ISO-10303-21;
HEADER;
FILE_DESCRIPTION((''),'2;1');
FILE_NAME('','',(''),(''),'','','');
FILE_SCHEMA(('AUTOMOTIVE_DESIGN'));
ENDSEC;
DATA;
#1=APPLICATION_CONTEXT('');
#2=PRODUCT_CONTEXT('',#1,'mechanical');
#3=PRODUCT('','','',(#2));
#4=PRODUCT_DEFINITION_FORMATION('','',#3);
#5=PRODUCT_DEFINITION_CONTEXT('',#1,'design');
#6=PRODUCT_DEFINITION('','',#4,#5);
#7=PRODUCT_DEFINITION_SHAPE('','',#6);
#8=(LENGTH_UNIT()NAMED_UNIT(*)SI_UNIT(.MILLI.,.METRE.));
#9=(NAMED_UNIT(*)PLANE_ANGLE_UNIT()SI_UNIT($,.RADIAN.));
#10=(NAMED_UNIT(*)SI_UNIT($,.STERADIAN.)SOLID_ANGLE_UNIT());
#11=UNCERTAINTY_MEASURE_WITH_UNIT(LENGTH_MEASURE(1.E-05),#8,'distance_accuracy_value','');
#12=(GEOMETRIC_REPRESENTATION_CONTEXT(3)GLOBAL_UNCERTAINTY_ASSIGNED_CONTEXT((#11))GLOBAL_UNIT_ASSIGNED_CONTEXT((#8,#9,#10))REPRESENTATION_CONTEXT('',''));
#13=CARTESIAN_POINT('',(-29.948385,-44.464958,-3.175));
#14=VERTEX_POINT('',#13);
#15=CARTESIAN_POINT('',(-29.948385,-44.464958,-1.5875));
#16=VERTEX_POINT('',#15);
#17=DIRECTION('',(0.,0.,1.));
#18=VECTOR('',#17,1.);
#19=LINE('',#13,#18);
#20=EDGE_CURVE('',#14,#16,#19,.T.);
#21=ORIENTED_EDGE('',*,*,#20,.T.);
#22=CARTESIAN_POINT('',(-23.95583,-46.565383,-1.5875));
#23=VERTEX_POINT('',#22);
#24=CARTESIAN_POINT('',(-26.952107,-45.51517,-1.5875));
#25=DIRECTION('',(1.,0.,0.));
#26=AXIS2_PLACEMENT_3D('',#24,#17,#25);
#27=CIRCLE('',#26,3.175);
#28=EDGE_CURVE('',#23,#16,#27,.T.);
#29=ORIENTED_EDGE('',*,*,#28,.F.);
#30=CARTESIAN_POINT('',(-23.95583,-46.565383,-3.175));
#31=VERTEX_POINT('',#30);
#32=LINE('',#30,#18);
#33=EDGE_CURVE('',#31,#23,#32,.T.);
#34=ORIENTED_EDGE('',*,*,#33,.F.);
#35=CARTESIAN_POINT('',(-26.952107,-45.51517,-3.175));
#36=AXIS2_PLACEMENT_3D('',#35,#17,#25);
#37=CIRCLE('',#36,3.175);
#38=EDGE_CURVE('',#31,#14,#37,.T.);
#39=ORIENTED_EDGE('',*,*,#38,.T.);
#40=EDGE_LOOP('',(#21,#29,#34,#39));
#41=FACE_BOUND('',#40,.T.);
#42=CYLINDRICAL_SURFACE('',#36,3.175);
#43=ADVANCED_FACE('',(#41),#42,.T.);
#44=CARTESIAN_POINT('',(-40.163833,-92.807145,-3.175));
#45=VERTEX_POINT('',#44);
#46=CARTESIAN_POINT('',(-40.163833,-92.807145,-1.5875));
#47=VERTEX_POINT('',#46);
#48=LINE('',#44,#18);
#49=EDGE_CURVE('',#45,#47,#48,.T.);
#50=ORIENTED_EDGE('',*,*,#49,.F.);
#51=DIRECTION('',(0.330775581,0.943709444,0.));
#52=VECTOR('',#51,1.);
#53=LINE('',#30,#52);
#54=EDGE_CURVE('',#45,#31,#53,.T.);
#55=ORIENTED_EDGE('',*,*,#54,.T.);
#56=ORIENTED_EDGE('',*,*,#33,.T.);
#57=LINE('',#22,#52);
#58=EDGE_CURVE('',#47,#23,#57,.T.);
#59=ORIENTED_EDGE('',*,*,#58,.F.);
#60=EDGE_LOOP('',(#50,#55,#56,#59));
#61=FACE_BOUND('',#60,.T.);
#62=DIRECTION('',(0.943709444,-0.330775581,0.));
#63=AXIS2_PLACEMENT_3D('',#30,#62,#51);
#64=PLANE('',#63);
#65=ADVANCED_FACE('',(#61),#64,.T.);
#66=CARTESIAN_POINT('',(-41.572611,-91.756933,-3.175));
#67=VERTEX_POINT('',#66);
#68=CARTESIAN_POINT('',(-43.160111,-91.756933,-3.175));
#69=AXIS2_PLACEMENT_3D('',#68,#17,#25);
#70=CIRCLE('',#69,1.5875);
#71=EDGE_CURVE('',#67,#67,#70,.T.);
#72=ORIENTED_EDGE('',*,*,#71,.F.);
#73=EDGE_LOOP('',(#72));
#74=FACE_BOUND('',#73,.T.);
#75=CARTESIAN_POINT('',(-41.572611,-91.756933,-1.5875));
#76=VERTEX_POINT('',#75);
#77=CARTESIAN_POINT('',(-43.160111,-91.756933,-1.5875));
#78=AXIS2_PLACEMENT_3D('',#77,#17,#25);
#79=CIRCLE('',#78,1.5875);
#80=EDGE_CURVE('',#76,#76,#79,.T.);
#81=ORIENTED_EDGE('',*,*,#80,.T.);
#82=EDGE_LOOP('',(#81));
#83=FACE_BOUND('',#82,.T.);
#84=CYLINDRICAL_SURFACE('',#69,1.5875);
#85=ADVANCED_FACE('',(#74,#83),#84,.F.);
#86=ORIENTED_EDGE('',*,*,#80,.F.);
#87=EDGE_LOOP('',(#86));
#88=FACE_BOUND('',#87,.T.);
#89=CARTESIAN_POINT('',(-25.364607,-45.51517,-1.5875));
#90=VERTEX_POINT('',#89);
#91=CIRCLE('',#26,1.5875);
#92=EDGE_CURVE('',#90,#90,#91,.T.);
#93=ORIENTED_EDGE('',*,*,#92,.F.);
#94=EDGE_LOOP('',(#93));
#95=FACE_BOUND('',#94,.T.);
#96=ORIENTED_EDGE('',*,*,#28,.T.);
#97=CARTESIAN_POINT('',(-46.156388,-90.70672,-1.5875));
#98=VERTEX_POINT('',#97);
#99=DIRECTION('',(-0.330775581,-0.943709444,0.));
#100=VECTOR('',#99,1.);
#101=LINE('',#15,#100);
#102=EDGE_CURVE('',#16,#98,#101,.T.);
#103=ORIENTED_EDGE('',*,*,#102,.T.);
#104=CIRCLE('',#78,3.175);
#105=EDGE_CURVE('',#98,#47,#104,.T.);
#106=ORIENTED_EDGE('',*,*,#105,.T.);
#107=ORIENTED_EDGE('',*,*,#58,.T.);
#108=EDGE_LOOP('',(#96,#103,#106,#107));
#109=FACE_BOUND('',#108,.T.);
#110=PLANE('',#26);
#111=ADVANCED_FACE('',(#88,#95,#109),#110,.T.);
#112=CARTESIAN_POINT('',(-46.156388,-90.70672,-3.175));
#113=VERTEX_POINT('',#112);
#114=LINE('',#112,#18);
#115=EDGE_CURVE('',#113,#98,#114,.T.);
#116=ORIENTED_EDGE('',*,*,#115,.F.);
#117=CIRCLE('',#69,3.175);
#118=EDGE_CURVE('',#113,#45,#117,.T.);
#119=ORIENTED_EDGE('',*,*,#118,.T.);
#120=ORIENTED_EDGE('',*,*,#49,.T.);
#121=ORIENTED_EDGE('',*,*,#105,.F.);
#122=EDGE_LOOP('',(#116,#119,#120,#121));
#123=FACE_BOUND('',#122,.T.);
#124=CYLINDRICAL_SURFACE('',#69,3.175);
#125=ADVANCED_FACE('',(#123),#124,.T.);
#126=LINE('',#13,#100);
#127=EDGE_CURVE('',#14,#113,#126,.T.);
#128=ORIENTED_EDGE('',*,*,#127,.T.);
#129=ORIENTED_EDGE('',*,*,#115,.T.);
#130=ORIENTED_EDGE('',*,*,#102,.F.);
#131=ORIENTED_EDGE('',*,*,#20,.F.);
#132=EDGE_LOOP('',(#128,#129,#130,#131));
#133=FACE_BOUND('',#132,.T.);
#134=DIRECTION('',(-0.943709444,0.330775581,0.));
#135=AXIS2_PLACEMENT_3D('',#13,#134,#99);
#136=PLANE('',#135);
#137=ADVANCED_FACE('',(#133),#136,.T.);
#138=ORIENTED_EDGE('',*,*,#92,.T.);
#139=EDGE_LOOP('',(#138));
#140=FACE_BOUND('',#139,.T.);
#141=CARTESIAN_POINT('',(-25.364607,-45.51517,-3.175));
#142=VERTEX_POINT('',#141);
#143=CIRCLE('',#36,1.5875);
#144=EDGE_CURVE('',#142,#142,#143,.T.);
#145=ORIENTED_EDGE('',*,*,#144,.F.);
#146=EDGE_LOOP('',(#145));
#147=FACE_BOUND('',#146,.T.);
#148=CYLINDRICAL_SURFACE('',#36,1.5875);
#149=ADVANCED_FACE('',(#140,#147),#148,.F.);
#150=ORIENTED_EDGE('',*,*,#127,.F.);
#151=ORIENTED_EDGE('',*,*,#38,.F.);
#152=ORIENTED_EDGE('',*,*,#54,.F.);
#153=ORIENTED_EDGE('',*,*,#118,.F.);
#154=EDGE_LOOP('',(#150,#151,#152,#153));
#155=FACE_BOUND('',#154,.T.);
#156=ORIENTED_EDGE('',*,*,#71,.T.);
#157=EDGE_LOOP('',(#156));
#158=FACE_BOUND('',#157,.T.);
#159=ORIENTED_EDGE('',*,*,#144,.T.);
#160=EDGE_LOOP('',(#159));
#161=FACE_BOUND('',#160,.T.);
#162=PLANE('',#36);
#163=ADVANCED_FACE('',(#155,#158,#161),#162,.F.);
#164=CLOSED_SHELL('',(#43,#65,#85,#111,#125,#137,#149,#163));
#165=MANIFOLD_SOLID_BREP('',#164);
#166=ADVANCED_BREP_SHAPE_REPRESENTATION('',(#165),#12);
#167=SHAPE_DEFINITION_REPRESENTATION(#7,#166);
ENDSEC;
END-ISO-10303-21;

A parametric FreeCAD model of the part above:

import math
import FreeCAD as App
import Part
import Sketcher
from FreeCAD import Vector
Q = App.Units.Quantity

doc = App.newDocument("Part")
body = doc.addObject("PartDesign::Body", "Body")

# Sketch on XY plane
sketch1 = body.newObject("Sketcher::SketchObject", "Sketch")
sketch1.AttachmentSupport = (doc.getObject("XY_Plane"), [""])
sketch1.MapMode = "FlatFace"
sketch1.AttachmentOffset = App.Placement(Vector(0, 0, -0.0625 * 25.4), App.Rotation())
sketch1.addGeometry(Part.LineSegment(Vector(-40.2, -92.8, 0), Vector(-24, -46.6, 0)), False)
sketch1.addGeometry(Part.ArcOfCircle(Part.Circle(Vector(-27, -45.5, 0), Vector(0, 0, 1), 3.2), math.radians(-19), math.radians(161)), False)
sketch1.addGeometry(Part.LineSegment(Vector(-29.9, -44.5, 0), Vector(-46.2, -90.7, 0)), False)
sketch1.addGeometry(Part.ArcOfCircle(Part.Circle(Vector(-43.2, -91.8, 0), Vector(0, 0, 1), 3.2), math.radians(161), math.radians(341)), False)
sketch1.addGeometry(Part.Circle(Vector(-43.2, -91.8, 0), Vector(0, 0, 1), 1.6), False)
sketch1.addGeometry(Part.Circle(Vector(-27, -45.5, 0), Vector(0, 0, 1), 1.6), False)
sketch1.addConstraint(Sketcher.Constraint("Tangent", 0, 2, 1, 1))
sketch1.addConstraint(Sketcher.Constraint("Tangent", 1, 2, 2, 1))
sketch1.addConstraint(Sketcher.Constraint("Tangent", 2, 2, 3, 1))
sketch1.addConstraint(Sketcher.Constraint("Tangent", 3, 2, 0, 1))
sketch1.addConstraint(Sketcher.Constraint("Coincident", 4, 3, 3, 3))
sketch1.addConstraint(Sketcher.Constraint("Coincident", 5, 3, 1, 3))
sketch1.addConstraint(Sketcher.Constraint("Equal", 1, 3))
sketch1.addConstraint(Sketcher.Constraint("Equal", 4, 5))
sketch1.addConstraint(Sketcher.Constraint("Diameter", 4, Q("0.125 in")))
sketch1.addConstraint(Sketcher.Constraint("Radius", 1, Q("0.125 in")))
sketch1.addConstraint(Sketcher.Constraint("Distance", 0, Q("49 mm")))
sketch1.addConstraint(Sketcher.Constraint("DistanceY", 1, 3, -1, 1, Q("45.51517 mm")))
sketch1.addConstraint(Sketcher.Constraint("DistanceX", 3, 3, -1, 1, Q("43.160111 mm")))
sketch1.addConstraint(Sketcher.Constraint("DistanceX", 0, 2, -1, 1, Q("23.95583 mm")))
pad1 = body.newObject("PartDesign::Pad", "Pad")
pad1.Profile = sketch1
pad1.Length = Q("0.0625 in")
pad1.Reversed = True

doc.recompute()
